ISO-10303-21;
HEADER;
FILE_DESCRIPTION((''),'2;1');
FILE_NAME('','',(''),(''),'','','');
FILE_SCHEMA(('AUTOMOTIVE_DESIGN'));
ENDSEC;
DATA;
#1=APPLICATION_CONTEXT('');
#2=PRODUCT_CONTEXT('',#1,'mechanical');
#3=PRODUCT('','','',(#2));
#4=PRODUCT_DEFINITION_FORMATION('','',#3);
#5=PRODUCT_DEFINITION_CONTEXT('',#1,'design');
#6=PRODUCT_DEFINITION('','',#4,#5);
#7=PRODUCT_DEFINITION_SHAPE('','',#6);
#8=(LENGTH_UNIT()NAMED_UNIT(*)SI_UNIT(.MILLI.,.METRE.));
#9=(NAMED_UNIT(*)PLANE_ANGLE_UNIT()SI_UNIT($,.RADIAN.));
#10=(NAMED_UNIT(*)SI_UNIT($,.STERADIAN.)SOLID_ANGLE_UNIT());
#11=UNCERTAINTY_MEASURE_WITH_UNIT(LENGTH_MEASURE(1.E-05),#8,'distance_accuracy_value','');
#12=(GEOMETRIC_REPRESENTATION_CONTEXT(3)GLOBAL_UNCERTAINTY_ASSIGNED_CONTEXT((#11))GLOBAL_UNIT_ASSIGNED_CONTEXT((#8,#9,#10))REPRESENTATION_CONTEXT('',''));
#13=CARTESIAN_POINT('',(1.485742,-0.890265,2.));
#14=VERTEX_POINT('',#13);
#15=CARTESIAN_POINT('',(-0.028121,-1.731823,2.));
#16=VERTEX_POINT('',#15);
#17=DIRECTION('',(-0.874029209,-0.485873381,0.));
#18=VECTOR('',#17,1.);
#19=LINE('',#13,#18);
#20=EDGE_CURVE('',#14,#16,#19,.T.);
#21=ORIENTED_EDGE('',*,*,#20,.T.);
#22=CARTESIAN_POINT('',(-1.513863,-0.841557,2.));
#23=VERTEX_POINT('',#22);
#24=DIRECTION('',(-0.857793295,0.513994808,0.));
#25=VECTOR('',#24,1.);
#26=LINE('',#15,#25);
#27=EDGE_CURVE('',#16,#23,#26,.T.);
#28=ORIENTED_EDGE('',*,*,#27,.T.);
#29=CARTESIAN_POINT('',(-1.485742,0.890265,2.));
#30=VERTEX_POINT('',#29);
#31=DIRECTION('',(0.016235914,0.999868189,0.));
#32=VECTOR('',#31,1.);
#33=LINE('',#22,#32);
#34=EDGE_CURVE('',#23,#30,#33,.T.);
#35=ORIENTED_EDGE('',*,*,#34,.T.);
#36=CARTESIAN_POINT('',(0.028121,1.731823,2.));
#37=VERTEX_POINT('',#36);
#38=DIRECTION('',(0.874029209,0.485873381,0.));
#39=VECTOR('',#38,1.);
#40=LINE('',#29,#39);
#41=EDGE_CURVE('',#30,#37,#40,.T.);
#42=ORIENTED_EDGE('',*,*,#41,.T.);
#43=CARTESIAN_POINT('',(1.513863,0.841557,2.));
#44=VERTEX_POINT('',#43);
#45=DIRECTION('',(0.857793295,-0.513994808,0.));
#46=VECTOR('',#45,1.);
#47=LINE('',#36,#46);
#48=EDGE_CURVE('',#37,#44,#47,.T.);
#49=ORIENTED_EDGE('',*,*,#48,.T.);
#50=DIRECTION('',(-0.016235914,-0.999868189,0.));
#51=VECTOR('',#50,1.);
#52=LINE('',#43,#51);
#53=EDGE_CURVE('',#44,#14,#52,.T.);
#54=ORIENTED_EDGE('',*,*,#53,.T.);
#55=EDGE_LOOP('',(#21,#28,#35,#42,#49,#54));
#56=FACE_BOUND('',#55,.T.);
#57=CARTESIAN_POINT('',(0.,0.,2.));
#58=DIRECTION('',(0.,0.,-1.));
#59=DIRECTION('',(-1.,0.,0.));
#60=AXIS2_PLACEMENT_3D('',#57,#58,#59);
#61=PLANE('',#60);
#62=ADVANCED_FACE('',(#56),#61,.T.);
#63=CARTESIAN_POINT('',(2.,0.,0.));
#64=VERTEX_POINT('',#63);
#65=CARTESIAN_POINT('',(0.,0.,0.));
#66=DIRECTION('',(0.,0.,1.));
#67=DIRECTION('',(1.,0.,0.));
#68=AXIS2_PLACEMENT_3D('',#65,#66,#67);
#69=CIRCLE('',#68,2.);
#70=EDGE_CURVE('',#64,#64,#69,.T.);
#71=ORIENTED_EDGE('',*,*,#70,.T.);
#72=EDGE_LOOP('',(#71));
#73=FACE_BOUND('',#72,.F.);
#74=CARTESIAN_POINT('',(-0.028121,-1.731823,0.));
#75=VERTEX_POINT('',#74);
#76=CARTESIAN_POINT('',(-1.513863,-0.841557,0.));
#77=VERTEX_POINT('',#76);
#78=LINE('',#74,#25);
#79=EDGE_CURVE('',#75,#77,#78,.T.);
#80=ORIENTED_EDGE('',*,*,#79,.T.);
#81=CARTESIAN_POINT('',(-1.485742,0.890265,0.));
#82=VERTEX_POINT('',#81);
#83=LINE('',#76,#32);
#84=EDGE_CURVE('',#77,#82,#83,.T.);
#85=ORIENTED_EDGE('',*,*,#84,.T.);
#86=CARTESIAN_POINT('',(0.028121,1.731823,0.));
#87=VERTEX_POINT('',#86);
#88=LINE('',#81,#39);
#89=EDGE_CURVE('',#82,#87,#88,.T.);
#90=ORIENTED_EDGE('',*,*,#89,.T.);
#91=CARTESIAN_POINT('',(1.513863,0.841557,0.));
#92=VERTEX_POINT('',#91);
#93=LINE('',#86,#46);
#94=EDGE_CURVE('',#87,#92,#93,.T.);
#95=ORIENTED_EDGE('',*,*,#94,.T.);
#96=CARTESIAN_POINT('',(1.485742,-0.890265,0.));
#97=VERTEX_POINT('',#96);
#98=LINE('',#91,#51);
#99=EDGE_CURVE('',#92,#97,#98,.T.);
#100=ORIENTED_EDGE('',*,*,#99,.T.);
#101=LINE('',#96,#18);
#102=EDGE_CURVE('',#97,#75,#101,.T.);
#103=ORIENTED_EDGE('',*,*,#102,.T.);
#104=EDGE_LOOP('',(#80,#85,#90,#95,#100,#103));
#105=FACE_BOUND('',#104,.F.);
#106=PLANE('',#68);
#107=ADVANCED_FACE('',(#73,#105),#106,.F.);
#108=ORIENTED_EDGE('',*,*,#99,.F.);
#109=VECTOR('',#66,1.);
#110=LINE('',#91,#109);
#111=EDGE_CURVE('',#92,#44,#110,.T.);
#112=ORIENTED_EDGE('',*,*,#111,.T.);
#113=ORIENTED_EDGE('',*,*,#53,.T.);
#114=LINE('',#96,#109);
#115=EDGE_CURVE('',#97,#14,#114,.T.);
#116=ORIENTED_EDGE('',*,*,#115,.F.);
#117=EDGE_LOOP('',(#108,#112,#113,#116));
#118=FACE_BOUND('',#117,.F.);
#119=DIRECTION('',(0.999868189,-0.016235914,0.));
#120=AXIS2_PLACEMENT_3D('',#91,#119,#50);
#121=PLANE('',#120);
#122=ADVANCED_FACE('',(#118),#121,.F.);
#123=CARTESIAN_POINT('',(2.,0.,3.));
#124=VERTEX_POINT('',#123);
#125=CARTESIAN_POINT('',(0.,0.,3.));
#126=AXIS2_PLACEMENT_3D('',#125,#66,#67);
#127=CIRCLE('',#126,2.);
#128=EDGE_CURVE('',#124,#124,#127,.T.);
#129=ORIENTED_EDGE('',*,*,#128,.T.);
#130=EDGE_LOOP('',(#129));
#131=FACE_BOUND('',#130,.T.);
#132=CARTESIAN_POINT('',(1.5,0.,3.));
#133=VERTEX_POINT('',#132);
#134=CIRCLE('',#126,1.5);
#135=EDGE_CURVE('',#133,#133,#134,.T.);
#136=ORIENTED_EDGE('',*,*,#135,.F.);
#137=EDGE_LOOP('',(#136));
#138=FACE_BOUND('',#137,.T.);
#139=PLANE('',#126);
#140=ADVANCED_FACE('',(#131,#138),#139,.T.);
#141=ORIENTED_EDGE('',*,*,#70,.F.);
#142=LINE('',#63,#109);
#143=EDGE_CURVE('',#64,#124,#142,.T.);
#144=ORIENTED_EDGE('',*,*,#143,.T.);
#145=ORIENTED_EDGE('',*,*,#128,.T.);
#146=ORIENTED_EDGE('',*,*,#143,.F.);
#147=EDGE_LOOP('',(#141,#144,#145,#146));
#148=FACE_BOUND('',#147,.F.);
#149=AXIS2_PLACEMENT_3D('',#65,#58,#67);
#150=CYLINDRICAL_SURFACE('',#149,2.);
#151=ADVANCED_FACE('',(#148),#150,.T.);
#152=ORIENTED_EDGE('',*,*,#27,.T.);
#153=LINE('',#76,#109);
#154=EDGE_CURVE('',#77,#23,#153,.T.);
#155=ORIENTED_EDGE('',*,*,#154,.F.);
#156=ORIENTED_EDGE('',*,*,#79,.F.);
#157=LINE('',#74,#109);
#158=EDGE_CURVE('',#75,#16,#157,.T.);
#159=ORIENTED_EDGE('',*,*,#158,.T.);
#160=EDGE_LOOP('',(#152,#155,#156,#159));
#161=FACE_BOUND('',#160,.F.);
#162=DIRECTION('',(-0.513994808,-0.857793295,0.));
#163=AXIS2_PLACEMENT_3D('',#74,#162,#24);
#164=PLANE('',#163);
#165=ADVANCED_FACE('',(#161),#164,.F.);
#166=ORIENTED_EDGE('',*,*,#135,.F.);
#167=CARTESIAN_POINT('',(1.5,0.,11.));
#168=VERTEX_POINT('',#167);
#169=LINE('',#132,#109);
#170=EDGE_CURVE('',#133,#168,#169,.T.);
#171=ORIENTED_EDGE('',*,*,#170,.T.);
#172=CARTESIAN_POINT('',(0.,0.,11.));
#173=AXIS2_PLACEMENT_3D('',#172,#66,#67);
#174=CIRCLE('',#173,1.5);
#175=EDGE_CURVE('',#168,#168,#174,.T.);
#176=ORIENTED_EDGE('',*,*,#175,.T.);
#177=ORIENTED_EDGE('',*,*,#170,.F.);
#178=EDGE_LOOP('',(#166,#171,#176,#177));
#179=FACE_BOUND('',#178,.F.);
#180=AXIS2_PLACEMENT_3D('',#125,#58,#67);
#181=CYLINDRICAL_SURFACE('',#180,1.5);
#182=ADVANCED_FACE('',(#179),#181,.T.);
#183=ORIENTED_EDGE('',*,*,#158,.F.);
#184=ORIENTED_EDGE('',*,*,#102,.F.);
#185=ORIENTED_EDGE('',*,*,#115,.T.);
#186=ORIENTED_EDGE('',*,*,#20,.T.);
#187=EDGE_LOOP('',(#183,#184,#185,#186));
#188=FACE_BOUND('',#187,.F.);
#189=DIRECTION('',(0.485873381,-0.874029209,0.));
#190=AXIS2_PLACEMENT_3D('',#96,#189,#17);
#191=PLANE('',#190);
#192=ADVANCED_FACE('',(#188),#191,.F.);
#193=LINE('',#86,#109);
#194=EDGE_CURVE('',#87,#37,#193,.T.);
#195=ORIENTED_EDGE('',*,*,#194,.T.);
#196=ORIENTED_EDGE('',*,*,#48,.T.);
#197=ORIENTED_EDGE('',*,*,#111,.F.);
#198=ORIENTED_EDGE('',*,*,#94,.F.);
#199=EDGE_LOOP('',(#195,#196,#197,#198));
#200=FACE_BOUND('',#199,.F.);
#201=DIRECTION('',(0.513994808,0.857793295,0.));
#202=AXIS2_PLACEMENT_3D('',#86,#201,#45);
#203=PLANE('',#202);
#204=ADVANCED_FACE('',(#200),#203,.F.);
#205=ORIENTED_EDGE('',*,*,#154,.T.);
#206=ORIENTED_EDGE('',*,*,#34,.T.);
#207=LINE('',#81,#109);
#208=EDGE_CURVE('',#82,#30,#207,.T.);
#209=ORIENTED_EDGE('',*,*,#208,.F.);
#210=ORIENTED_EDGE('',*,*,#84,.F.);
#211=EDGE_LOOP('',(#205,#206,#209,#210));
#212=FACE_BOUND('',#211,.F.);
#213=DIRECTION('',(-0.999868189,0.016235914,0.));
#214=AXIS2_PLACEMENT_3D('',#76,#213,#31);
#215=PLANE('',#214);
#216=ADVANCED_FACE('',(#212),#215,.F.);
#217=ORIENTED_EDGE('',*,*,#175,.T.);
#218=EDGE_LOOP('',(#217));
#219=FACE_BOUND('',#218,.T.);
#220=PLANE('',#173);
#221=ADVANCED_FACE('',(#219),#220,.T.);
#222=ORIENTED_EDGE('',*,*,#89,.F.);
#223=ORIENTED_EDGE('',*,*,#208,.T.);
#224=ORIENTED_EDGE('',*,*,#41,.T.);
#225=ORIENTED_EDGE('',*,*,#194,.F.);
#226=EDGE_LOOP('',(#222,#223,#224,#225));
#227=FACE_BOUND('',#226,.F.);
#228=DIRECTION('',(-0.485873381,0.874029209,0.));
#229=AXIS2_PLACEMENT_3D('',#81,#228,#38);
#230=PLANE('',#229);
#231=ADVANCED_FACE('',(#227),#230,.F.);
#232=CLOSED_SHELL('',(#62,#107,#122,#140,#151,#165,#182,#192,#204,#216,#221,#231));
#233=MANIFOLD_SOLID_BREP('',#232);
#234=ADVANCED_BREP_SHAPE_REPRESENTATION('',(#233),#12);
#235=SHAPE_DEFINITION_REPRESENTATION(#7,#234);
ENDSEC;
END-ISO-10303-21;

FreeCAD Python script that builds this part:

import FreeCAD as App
import Part
import Sketcher
from FreeCAD import Vector
Q = App.Units.Quantity

doc = App.newDocument("Part")
body = doc.addObject("PartDesign::Body", "Body")

# Sketch on XY plane
sketch1 = body.newObject("Sketcher::SketchObject", "Sketch")
sketch1.AttachmentSupport = (doc.getObject("XY_Plane"), [""])
sketch1.MapMode = "FlatFace"
sketch1.addGeometry(Part.Circle(Vector(0, 0, 0), Vector(0, 0, 1), 2), False)
sketch1.addConstraint(Sketcher.Constraint("Coincident", 0, 3, -1, 1))
sketch1.addConstraint(Sketcher.Constraint("Diameter", 0, Q("4 mm")))
pad1 = body.newObject("PartDesign::Pad", "Pad")
pad1.Profile = sketch1
pad1.Length = 3

# Sketch on XY plane
sketch2 = body.newObject("Sketcher::SketchObject", "Sketch001")
sketch2.AttachmentSupport = (doc.getObject("XY_Plane"), [""])
sketch2.MapMode = "FlatFace"
sketch2.AttachmentOffset = App.Placement(Vector(0, 0, 3), App.Rotation())
sketch2.addGeometry(Part.Circle(Vector(0, 0, 0), Vector(0, 0, 1), 1.5), False)
sketch2.addConstraint(Sketcher.Constraint("Coincident", 0, 3, -1, 1))
sketch2.addConstraint(Sketcher.Constraint("Diameter", 0, Q("3 mm")))
pad2 = body.newObject("PartDesign::Pad", "Pad001")
pad2.Profile = sketch2
pad2.Length = 8

# Sketch on XY plane
sketch3 = body.newObject("Sketcher::SketchObject", "Sketch002")
sketch3.AttachmentSupport = (doc.getObject("XY_Plane"), [""])
sketch3.MapMode = "FlatFace"
sketch3.addGeometry(Part.LineSegment(Vector(-1.5, -0.8, 0), Vector(-1.5, 0.9, 0)), False)
sketch3.addGeometry(Part.LineSegment(Vector(-1.5, 0.9, 0), Vector(0, 1.7, 0)), False)
sketch3.addGeometry(Part.LineSegment(Vector(0, 1.7, 0), Vector(1.5, 0.8, 0)), False)
sketch3.addGeometry(Part.LineSegment(Vector(1.5, 0.8, 0), Vector(1.5, -0.9, 0)), False)
sketch3.addGeometry(Part.LineSegment(Vector(1.5, -0.9, 0), Vector(0, -1.7, 0)), False)
sketch3.addGeometry(Part.LineSegment(Vector(0, -1.7, 0), Vector(-1.5, -0.8, 0)), False)
sketch3.addConstraint(Sketcher.Constraint("Coincident", 0, 2, 1, 1))
sketch3.addConstraint(Sketcher.Constraint("Coincident", 1, 2, 2, 1))
sketch3.addConstraint(Sketcher.Constraint("Coincident", 2, 2, 3, 1))
sketch3.addConstraint(Sketcher.Constraint("Coincident", 3, 2, 4, 1))
sketch3.addConstraint(Sketcher.Constraint("Coincident", 4, 2, 5, 1))
sketch3.addConstraint(Sketcher.Constraint("Coincident", 5, 2, 0, 1))
sketch3.addConstraint(Sketcher.Constraint("Symmetric", 0, 2, 3, 2, -1, 1))
sketch3.addConstraint(Sketcher.Constraint("Symmetric", 1, 2, 4, 2, -1, 1))
sketch3.addConstraint(Sketcher.Constraint("Symmetric", 2, 2, 5, 2, -1, 1))
sketch3.addConstraint(Sketcher.Constraint("Equal", 0, 1))
sketch3.addConstraint(Sketcher.Constraint("Equal", 1, 2))
sketch3.addConstraint(Sketcher.Constraint("Distance", 0, Q("1.732051 mm")))
sketch3.addConstraint(Sketcher.Constraint("DistanceX", 0, 2, -1, 1, Q("1.485742 mm")))
sketch3.addConstraint(Sketcher.Constraint("DistanceX", -1, 1, 1, 2, Q("0.028121 mm")))
sketch3.addConstraint(Sketcher.Constraint("DistanceX", 1, 2, 2, 2, Q("1.485742 mm")))
pocket1 = body.newObject("PartDesign::Pocket", "Pocket")
pocket1.Profile = sketch3
pocket1.Length = 2
pocket1.Reversed = True

doc.recompute()
